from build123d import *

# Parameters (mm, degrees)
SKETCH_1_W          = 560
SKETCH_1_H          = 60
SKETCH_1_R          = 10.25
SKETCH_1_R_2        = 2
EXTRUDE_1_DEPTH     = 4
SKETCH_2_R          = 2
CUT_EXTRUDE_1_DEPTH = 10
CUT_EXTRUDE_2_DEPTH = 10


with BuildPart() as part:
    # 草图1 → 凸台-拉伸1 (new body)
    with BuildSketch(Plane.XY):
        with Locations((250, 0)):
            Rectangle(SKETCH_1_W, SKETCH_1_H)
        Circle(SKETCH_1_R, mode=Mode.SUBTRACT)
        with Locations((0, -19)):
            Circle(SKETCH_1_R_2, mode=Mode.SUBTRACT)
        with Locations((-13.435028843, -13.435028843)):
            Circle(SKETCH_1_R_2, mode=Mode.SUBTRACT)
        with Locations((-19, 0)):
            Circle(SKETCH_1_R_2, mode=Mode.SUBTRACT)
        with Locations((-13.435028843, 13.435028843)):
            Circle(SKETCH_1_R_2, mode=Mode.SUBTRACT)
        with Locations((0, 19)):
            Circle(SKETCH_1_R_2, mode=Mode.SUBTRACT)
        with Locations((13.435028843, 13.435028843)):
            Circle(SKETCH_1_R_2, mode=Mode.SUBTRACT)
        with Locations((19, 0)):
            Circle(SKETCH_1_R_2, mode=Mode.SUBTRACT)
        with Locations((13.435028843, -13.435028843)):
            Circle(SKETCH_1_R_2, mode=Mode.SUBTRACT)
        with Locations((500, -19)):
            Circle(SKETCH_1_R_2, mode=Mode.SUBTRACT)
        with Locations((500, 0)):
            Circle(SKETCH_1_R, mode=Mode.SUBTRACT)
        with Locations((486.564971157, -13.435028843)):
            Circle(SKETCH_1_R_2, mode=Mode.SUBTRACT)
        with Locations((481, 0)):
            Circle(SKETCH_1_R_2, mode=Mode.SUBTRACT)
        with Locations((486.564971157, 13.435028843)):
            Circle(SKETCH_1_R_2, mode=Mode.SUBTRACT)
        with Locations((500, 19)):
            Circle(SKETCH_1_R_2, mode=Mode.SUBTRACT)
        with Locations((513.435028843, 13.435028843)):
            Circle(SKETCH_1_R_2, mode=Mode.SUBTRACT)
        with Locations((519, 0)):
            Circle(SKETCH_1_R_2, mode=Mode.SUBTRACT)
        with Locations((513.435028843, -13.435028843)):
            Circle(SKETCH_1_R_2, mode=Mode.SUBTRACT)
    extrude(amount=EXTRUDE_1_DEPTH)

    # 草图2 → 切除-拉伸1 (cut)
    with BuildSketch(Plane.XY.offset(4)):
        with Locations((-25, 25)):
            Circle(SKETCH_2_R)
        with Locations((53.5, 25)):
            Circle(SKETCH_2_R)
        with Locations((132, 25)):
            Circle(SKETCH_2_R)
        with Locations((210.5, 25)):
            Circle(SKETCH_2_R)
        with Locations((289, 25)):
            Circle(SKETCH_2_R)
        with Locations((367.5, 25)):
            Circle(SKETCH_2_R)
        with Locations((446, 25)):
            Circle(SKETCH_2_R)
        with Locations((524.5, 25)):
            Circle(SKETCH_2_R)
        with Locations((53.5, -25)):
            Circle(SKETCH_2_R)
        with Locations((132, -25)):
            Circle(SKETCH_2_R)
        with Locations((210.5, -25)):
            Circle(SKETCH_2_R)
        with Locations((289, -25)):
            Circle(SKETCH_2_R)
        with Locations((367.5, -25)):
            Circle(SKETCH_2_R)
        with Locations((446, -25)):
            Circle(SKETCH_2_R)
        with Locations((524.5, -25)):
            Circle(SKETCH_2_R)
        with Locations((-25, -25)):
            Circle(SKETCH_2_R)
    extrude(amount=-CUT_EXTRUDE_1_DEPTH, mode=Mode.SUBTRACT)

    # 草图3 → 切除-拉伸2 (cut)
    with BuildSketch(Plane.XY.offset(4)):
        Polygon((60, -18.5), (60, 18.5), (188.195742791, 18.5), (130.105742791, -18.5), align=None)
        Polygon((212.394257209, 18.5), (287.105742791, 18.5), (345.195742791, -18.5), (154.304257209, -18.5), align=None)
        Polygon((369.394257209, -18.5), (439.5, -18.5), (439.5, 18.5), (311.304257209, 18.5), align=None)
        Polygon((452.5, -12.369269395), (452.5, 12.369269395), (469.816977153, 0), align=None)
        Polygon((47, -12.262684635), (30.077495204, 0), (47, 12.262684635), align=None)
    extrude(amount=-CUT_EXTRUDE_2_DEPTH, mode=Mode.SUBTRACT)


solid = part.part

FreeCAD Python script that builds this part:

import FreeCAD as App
import Part
import Sketcher

doc = App.newDocument("Part")
params = doc.addObject("Spreadsheet::Sheet", "Params")
for row, (alias, value) in enumerate([
    ("sketch1_diameter", "4 mm"),
    ("sketch1_diameter2", "20.5 mm"),
    ("sketch1_width", "560 mm"),
    ("sketch1_height", "60 mm"),
    ("pad1_length", "4 mm"),
    ("sketch2_diameter", "4 mm"),
    ("pocket1_length", "10 mm"),
    ("sketch3_height", "37 mm"),
    ("pocket2_length", "10 mm"),
], start=1):
    params.set(f"A{row}", alias)
    params.set(f"B{row}", "=" + value)
    params.setAlias(f"B{row}", alias)

body = doc.addObject("PartDesign::Body", "Body")

# Sketch on XY plane
sketch1 = doc.addObject("Sketcher::SketchObject", "Sketch")
body.addObject(sketch1)
sketch1.AttachmentSupport = (doc.XY_Plane, [""])
sketch1.MapMode = "FlatFace"
sketch1.addGeometry([
    Part.LineSegment(App.Vector(-30, 30, 0), App.Vector(-30, -30, 0)),  # 0
    Part.LineSegment(App.Vector(-30, -30, 0), App.Vector(530, -30, 0)),  # 1
    Part.LineSegment(App.Vector(530, -30, 0), App.Vector(530, 30, 0)),  # 2
    Part.LineSegment(App.Vector(530, 30, 0), App.Vector(-30, 30, 0)),  # 3
    Part.Circle(App.Vector(0, -19, 0), App.Vector(0, 0, 1), 2),  # 4
    Part.Circle(App.Vector(-13.4, -13.4, 0), App.Vector(0, 0, 1), 2),  # 5
    Part.Circle(App.Vector(13.4, -13.4, 0), App.Vector(0, 0, 1), 2),  # 6
    Part.Circle(App.Vector(500, -19, 0), App.Vector(0, 0, 1), 2),  # 7
    Part.Circle(App.Vector(486.6, -13.4, 0), App.Vector(0, 0, 1), 2),  # 8
    Part.Circle(App.Vector(513.4, -13.4, 0), App.Vector(0, 0, 1), 2),  # 9
    Part.Circle(App.Vector(-19, 0, 0), App.Vector(0, 0, 1), 2),  # 10
    Part.Circle(App.Vector(0, 0, 0), App.Vector(0, 0, 1), 10.2),  # 11
    Part.Circle(App.Vector(19, 0, 0), App.Vector(0, 0, 1), 2),  # 12
    Part.Circle(App.Vector(-13.4, 13.4, 0), App.Vector(0, 0, 1), 2),  # 13
    Part.Circle(App.Vector(13.4, 13.4, 0), App.Vector(0, 0, 1), 2),  # 14
    Part.Circle(App.Vector(0, 19, 0), App.Vector(0, 0, 1), 2),  # 15
    Part.Circle(App.Vector(481, 0, 0), App.Vector(0, 0, 1), 2),  # 16
    Part.Circle(App.Vector(500, 0, 0), App.Vector(0, 0, 1), 10.2),  # 17
    Part.Circle(App.Vector(519, 0, 0), App.Vector(0, 0, 1), 2),  # 18
    Part.Circle(App.Vector(486.6, 13.4, 0), App.Vector(0, 0, 1), 2),  # 19
    Part.Circle(App.Vector(513.4, 13.4, 0), App.Vector(0, 0, 1), 2),  # 20
    Part.Circle(App.Vector(500, 19, 0), App.Vector(0, 0, 1), 2),  # 21
], False)
sketch1.addConstraint([
    Sketcher.Constraint("Coincident", 0, 2, 1, 1),
    Sketcher.Constraint("Coincident", 1, 2, 2, 1),
    Sketcher.Constraint("Coincident", 2, 2, 3, 1),
    Sketcher.Constraint("Coincident", 3, 2, 0, 1),
    Sketcher.Constraint("Vertical", 0),
    Sketcher.Constraint("Horizontal", 1),
    Sketcher.Constraint("Vertical", 2),
    Sketcher.Constraint("Horizontal", 3),
    Sketcher.Constraint("Coincident", 11, 3, -1, 1),
    Sketcher.Constraint("Equal", 4, 5),
    Sketcher.Constraint("Equal", 5, 6),
    Sketcher.Constraint("Equal", 6, 7),
    Sketcher.Constraint("Equal", 7, 8),
    Sketcher.Constraint("Equal", 8, 9),
    Sketcher.Constraint("Equal", 9, 10),
    Sketcher.Constraint("Equal", 10, 12),
    Sketcher.Constraint("Equal", 12, 13),
    Sketcher.Constraint("Equal", 13, 14),
    Sketcher.Constraint("Equal", 14, 15),
    Sketcher.Constraint("Equal", 15, 16),
    Sketcher.Constraint("Equal", 11, 17),
    Sketcher.Constraint("Equal", 16, 18),
    Sketcher.Constraint("Equal", 18, 19),
    Sketcher.Constraint("Equal", 19, 20),
    Sketcher.Constraint("Equal", 20, 21),
    Sketcher.Constraint("Symmetric", 10, 3, 12, 3, -1, 1),
    Sketcher.Constraint("Symmetric", 6, 3, 13, 3, -1, 1),
    Sketcher.Constraint("Symmetric", 5, 3, 14, 3, -1, 1),
    Sketcher.Constraint("Symmetric", 4, 3, 15, 3, -1, 1),
    Sketcher.Constraint("Symmetric", 5, 3, 6, 3, -2),
    Sketcher.Constraint("Symmetric", 8, 3, 19, 3, -1),
    Sketcher.Constraint("Symmetric", 9, 3, 20, 3, -1),
    Sketcher.Constraint("Symmetric", 7, 3, 21, 3, -1),
    Sketcher.Constraint("PointOnObject", 4, 3, -2),
    Sketcher.Constraint("PointOnObject", 10, 3, -1),
    Sketcher.Constraint("PointOnObject", 16, 3, -1),
    Sketcher.Constraint("PointOnObject", 17, 3, -1),
    Sketcher.Constraint("PointOnObject", 18, 3, -1),
    Sketcher.Constraint("Horizontal", 4, 3, 7, 3),
    Sketcher.Constraint("Horizontal", 6, 3, 8, 3),
    Sketcher.Constraint("Horizontal", 8, 3, 9, 3),
    Sketcher.Constraint("Vertical", 7, 3, 17, 3),
    Sketcher.Constraint("Diameter", 4, 4.0),
    Sketcher.Constraint("Diameter", 11, 20.5),
    Sketcher.Constraint("DistanceX", 1, 1, 1, 2, 560.0),
    Sketcher.Constraint("DistanceY", 0, 2, 0, 1, 60.0),
    Sketcher.Constraint("DistanceY", 4, 3, -1, 1, 19.0),
    Sketcher.Constraint("DistanceX", -1, 1, 7, 3, 500.0),
    Sketcher.Constraint("DistanceX", 10, 3, -1, 1, 19.0),
    Sketcher.Constraint("DistanceX", -1, 1, 16, 3, 481.0),
    Sketcher.Constraint("DistanceX", -1, 1, 18, 3, 519.0),
    Sketcher.Constraint("DistanceX", 0, 2, -1, 1, 30.0),
    Sketcher.Constraint("DistanceY", 0, 2, -1, 1, 30.0),
    Sketcher.Constraint("DistanceX", 5, 3, 8, 3, 500.0),
    Sketcher.Constraint("DistanceX", 6, 3, 9, 3, 500.0),
    Sketcher.Constraint("DistanceX", 5, 3, -1, 1, 13.435029),
    Sketcher.Constraint("DistanceY", 5, 3, -1, 1, 13.435029),
])
sketch1.setExpression("Constraints[42]", "Params.sketch1_diameter")
sketch1.setExpression("Constraints[43]", "Params.sketch1_diameter2")
sketch1.setExpression("Constraints[44]", "Params.sketch1_width")
sketch1.setExpression("Constraints[45]", "Params.sketch1_height")
pad1 = doc.addObject("PartDesign::Pad", "Pad")
body.addObject(pad1)
pad1.Profile = sketch1
pad1.setExpression("Length", "Params.pad1_length")

# Sketch on XY plane
sketch2 = doc.addObject("Sketcher::SketchObject", "Sketch001")
body.addObject(sketch2)
sketch2.AttachmentSupport = (doc.XY_Plane, [""])
sketch2.MapMode = "FlatFace"
sketch2.AttachmentOffset = App.Placement(App.Vector(0, 0, 4), App.Rotation())
sketch2.addGeometry([
    Part.Circle(App.Vector(-25, 25, 0), App.Vector(0, 0, 1), 2),  # 0
    Part.Circle(App.Vector(53.5, 25, 0), App.Vector(0, 0, 1), 2),  # 1
    Part.Circle(App.Vector(132, 25, 0), App.Vector(0, 0, 1), 2),  # 2
    Part.Circle(App.Vector(210.5, 25, 0), App.Vector(0, 0, 1), 2),  # 3
    Part.Circle(App.Vector(289, 25, 0), App.Vector(0, 0, 1), 2),  # 4
    Part.Circle(App.Vector(367.5, 25, 0), App.Vector(0, 0, 1), 2),  # 5
    Part.Circle(App.Vector(446, 25, 0), App.Vector(0, 0, 1), 2),  # 6
    Part.Circle(App.Vector(524.5, 25, 0), App.Vector(0, 0, 1), 2),  # 7
    Part.Circle(App.Vector(53.5, -25, 0), App.Vector(0, 0, 1), 2),  # 8
    Part.Circle(App.Vector(132, -25, 0), App.Vector(0, 0, 1), 2),  # 9
    Part.Circle(App.Vector(210.5, -25, 0), App.Vector(0, 0, 1), 2),  # 10
    Part.Circle(App.Vector(289, -25, 0), App.Vector(0, 0, 1), 2),  # 11
    Part.Circle(App.Vector(367.5, -25, 0), App.Vector(0, 0, 1), 2),  # 12
    Part.Circle(App.Vector(446, -25, 0), App.Vector(0, 0, 1), 2),  # 13
    Part.Circle(App.Vector(524.5, -25, 0), App.Vector(0, 0, 1), 2),  # 14
    Part.Circle(App.Vector(-25, -25, 0), App.Vector(0, 0, 1), 2),  # 15
], False)
sketch2.addConstraint([
    Sketcher.Constraint("Equal", 0, 1),
    Sketcher.Constraint("Equal", 1, 2),
    Sketcher.Constraint("Equal", 2, 3),
    Sketcher.Constraint("Equal", 3, 4),
    Sketcher.Constraint("Equal", 4, 5),
    Sketcher.Constraint("Equal", 5, 6),
    Sketcher.Constraint("Equal", 6, 7),
    Sketcher.Constraint("Equal", 7, 8),
    Sketcher.Constraint("Equal", 8, 9),
    Sketcher.Constraint("Equal", 9, 10),
    Sketcher.Constraint("Equal", 10, 11),
    Sketcher.Constraint("Equal", 11, 12),
    Sketcher.Constraint("Equal", 12, 13),
    Sketcher.Constraint("Equal", 13, 14),
    Sketcher.Constraint("Equal", 14, 15),
    Sketcher.Constraint("Symmetric", 1, 3, 8, 3, -1),
    Sketcher.Constraint("Symmetric", 2, 3, 9, 3, -1),
    Sketcher.Constraint("Symmetric", 3, 3, 10, 3, -1),
    Sketcher.Constraint("Symmetric", 4, 3, 11, 3, -1),
    Sketcher.Constraint("Symmetric", 5, 3, 12, 3, -1),
    Sketcher.Constraint("Symmetric", 6, 3, 13, 3, -1),
    Sketcher.Constraint("Symmetric", 7, 3, 14, 3, -1),
    Sketcher.Constraint("Symmetric", 0, 3, 15, 3, -1),
    Sketcher.Constraint("Horizontal", 0, 3, 1, 3),
    Sketcher.Constraint("Horizontal", 1, 3, 2, 3),
    Sketcher.Constraint("Horizontal", 2, 3, 3, 3),
    Sketcher.Constraint("Horizontal", 3, 3, 4, 3),
    Sketcher.Constraint("Horizontal", 4, 3, 5, 3),
    Sketcher.Constraint("Horizontal", 5, 3, 6, 3),
    Sketcher.Constraint("Horizontal", 6, 3, 7, 3),
    Sketcher.Constraint("Diameter", 0, 4.0),
    Sketcher.Constraint("DistanceX", 0, 3, -1, 1, 25.0),
    Sketcher.Constraint("DistanceY", -1, 1, 0, 3, 25.0),
    Sketcher.Constraint("DistanceX", -1, 1, 2, 3, 132.0),
    Sketcher.Constraint("DistanceX", -1, 1, 4, 3, 289.0),
    Sketcher.Constraint("DistanceX", -1, 1, 6, 3, 446.0),
    Sketcher.Constraint("DistanceX", 1, 3, 3, 3, 157.0),
    Sketcher.Constraint("DistanceX", 3, 3, 5, 3, 157.0),
    Sketcher.Constraint("DistanceX", 5, 3, 7, 3, 157.0),
    Sketcher.Constraint("DistanceX", -1, 1, 1, 3, 53.5),
])
sketch2.setExpression("Constraints[30]", "Params.sketch2_diameter")
pocket1 = doc.addObject("PartDesign::Pocket", "Pocket")
body.addObject(pocket1)
pocket1.Profile = sketch2
pocket1.setExpression("Length", "Params.pocket1_length")

# Sketch on XY plane
sketch3 = doc.addObject("Sketcher::SketchObject", "Sketch002")
body.addObject(sketch3)
sketch3.AttachmentSupport = (doc.XY_Plane, [""])
sketch3.MapMode = "FlatFace"
sketch3.AttachmentOffset = App.Placement(App.Vector(0, 0, 4), App.Rotation())
sketch3.addGeometry([
    Part.LineSegment(App.Vector(60, 18, 0), App.Vector(60, -18, 0)),  # 0
    Part.LineSegment(App.Vector(60, -18, 0), App.Vector(130, -18, 0)),  # 1
    Part.LineSegment(App.Vector(130, -18, 0), App.Vector(188, 18, 0)),  # 2
    Part.LineSegment(App.Vector(188, 18, 0), App.Vector(60, 18, 0)),  # 3
    Part.LineSegment(App.Vector(287, 18, 0), App.Vector(212, 18, 0)),  # 4
    Part.LineSegment(App.Vector(212, 18, 0), App.Vector(154, -18, 0)),  # 5
    Part.LineSegment(App.Vector(154, -18, 0), App.Vector(345, -18, 0)),  # 6
    Part.LineSegment(App.Vector(345, -18, 0), App.Vector(287, 18, 0)),  # 7
    Part.LineSegment(App.Vector(369, -18, 0), App.Vector(440, -18, 0)),  # 8
    Part.LineSegment(App.Vector(440, -18, 0), App.Vector(440, 18, 0)),  # 9
    Part.LineSegment(App.Vector(440, 18, 0), App.Vector(311, 18, 0)),  # 10
    Part.LineSegment(App.Vector(311, 18, 0), App.Vector(369, -18, 0)),  # 11
    Part.LineSegment(App.Vector(452, 12, 0), App.Vector(452, -12, 0)),  # 12
    Part.LineSegment(App.Vector(452, -12, 0), App.Vector(470, 0, 0)),  # 13
    Part.LineSegment(App.Vector(470, 0, 0), App.Vector(452, 12, 0)),  # 14
    Part.LineSegment(App.Vector(30, 0, 0), App.Vector(47, -12, 0)),  # 15
    Part.LineSegment(App.Vector(47, -12, 0), App.Vector(47, 12, 0)),  # 16
    Part.LineSegment(App.Vector(47, 12, 0), App.Vector(30, 0, 0)),  # 17
], False)
sketch3.addConstraint([
    Sketcher.Constraint("Coincident", 0, 2, 1, 1),
    Sketcher.Constraint("Coincident", 1, 2, 2, 1),
    Sketcher.Constraint("Coincident", 2, 2, 3, 1),
    Sketcher.Constraint("Coincident", 3, 2, 0, 1),
    Sketcher.Constraint("Coincident", 4, 2, 5, 1),
    Sketcher.Constraint("Coincident", 5, 2, 6, 1),
    Sketcher.Constraint("Coincident", 6, 2, 7, 1),
    Sketcher.Constraint("Coincident", 7, 2, 4, 1),
    Sketcher.Constraint("Coincident", 8, 2, 9, 1),
    Sketcher.Constraint("Coincident", 9, 2, 10, 1),
    Sketcher.Constraint("Coincident", 10, 2, 11, 1),
    Sketcher.Constraint("Coincident", 11, 2, 8, 1),
    Sketcher.Constraint("Coincident", 12, 2, 13, 1),
    Sketcher.Constraint("Coincident", 13, 2, 14, 1),
    Sketcher.Constraint("Coincident", 14, 2, 12, 1),
    Sketcher.Constraint("Coincident", 15, 2, 16, 1),
    Sketcher.Constraint("Coincident", 16, 2, 17, 1),
    Sketcher.Constraint("Coincident", 17, 2, 15, 1),
    Sketcher.Constraint("Vertical", 0),
    Sketcher.Constraint("Horizontal", 1),
    Sketcher.Constraint("Horizontal", 3),
    Sketcher.Constraint("Horizontal", 4),
    Sketcher.Constraint("Horizontal", 6),
    Sketcher.Constraint("Horizontal", 8),
    Sketcher.Constraint("Vertical", 9),
    Sketcher.Constraint("Horizontal", 10),
    Sketcher.Constraint("Vertical", 12),
    Sketcher.Constraint("Vertical", 16),
    Sketcher.Constraint("PointOnObject", 13, 2, -1),
    Sketcher.Constraint("PointOnObject", 17, 2, -1),
    Sketcher.Constraint("Parallel", 2, 5),
    Sketcher.Constraint("Parallel", 7, 11),
    Sketcher.Constraint("Horizontal", 3, 2, 4, 2),
    Sketcher.Constraint("Horizontal", 1, 2, 5, 2),
    Sketcher.Constraint("Horizontal", 6, 2, 8, 2),
    Sketcher.Constraint("Horizontal", 7, 2, 9, 2),
    Sketcher.Constraint("Equal", 1, 8),
    Sketcher.Constraint("Equal", 3, 10),
    Sketcher.Constraint("Equal", 13, 14),
    Sketcher.Constraint("Equal", 15, 17),
    Sketcher.Constraint("DistanceY", 0, 2, 0, 1, 37.0),
    Sketcher.Constraint("DistanceX", -1, 1, 0, 2, 60.0),
    Sketcher.Constraint("DistanceX", -1, 1, 15, 2, 47.0),
    Sketcher.Constraint("DistanceX", 2, 2, 6, 2, 157.0),
    Sketcher.Constraint("DistanceX", 8, 2, 12, 2, 13.0),
    Sketcher.Constraint("DistanceY", 0, 2, -1, 1, 18.5),
    Sketcher.Constraint("DistanceX", -1, 1, 8, 2, 439.5),
    Sketcher.Constraint("DistanceX", 1, 2, 2, 2, 58.09),
    Sketcher.Constraint("DistanceX", 4, 2, 10, 2, 98.91),
    Sketcher.Constraint("DistanceY", 12, 2, 12, 1, 24.738539),
    Sketcher.Constraint("DistanceY", 16, 1, 16, 2, 24.525369),
    Sketcher.Constraint("DistanceX", 1, 1, 1, 2, 70.105743),
    Sketcher.Constraint("DistanceX", 11, 2, 13, 2, 100.42272),
    Sketcher.Constraint("Distance", 15, 20.898435),
])
sketch3.setExpression("Constraints[40]", "Params.sketch3_height")
pocket2 = doc.addObject("PartDesign::Pocket", "Pocket001")
body.addObject(pocket2)
pocket2.Profile = sketch3
pocket2.setExpression("Length", "Params.pocket2_length")

doc.recompute()
